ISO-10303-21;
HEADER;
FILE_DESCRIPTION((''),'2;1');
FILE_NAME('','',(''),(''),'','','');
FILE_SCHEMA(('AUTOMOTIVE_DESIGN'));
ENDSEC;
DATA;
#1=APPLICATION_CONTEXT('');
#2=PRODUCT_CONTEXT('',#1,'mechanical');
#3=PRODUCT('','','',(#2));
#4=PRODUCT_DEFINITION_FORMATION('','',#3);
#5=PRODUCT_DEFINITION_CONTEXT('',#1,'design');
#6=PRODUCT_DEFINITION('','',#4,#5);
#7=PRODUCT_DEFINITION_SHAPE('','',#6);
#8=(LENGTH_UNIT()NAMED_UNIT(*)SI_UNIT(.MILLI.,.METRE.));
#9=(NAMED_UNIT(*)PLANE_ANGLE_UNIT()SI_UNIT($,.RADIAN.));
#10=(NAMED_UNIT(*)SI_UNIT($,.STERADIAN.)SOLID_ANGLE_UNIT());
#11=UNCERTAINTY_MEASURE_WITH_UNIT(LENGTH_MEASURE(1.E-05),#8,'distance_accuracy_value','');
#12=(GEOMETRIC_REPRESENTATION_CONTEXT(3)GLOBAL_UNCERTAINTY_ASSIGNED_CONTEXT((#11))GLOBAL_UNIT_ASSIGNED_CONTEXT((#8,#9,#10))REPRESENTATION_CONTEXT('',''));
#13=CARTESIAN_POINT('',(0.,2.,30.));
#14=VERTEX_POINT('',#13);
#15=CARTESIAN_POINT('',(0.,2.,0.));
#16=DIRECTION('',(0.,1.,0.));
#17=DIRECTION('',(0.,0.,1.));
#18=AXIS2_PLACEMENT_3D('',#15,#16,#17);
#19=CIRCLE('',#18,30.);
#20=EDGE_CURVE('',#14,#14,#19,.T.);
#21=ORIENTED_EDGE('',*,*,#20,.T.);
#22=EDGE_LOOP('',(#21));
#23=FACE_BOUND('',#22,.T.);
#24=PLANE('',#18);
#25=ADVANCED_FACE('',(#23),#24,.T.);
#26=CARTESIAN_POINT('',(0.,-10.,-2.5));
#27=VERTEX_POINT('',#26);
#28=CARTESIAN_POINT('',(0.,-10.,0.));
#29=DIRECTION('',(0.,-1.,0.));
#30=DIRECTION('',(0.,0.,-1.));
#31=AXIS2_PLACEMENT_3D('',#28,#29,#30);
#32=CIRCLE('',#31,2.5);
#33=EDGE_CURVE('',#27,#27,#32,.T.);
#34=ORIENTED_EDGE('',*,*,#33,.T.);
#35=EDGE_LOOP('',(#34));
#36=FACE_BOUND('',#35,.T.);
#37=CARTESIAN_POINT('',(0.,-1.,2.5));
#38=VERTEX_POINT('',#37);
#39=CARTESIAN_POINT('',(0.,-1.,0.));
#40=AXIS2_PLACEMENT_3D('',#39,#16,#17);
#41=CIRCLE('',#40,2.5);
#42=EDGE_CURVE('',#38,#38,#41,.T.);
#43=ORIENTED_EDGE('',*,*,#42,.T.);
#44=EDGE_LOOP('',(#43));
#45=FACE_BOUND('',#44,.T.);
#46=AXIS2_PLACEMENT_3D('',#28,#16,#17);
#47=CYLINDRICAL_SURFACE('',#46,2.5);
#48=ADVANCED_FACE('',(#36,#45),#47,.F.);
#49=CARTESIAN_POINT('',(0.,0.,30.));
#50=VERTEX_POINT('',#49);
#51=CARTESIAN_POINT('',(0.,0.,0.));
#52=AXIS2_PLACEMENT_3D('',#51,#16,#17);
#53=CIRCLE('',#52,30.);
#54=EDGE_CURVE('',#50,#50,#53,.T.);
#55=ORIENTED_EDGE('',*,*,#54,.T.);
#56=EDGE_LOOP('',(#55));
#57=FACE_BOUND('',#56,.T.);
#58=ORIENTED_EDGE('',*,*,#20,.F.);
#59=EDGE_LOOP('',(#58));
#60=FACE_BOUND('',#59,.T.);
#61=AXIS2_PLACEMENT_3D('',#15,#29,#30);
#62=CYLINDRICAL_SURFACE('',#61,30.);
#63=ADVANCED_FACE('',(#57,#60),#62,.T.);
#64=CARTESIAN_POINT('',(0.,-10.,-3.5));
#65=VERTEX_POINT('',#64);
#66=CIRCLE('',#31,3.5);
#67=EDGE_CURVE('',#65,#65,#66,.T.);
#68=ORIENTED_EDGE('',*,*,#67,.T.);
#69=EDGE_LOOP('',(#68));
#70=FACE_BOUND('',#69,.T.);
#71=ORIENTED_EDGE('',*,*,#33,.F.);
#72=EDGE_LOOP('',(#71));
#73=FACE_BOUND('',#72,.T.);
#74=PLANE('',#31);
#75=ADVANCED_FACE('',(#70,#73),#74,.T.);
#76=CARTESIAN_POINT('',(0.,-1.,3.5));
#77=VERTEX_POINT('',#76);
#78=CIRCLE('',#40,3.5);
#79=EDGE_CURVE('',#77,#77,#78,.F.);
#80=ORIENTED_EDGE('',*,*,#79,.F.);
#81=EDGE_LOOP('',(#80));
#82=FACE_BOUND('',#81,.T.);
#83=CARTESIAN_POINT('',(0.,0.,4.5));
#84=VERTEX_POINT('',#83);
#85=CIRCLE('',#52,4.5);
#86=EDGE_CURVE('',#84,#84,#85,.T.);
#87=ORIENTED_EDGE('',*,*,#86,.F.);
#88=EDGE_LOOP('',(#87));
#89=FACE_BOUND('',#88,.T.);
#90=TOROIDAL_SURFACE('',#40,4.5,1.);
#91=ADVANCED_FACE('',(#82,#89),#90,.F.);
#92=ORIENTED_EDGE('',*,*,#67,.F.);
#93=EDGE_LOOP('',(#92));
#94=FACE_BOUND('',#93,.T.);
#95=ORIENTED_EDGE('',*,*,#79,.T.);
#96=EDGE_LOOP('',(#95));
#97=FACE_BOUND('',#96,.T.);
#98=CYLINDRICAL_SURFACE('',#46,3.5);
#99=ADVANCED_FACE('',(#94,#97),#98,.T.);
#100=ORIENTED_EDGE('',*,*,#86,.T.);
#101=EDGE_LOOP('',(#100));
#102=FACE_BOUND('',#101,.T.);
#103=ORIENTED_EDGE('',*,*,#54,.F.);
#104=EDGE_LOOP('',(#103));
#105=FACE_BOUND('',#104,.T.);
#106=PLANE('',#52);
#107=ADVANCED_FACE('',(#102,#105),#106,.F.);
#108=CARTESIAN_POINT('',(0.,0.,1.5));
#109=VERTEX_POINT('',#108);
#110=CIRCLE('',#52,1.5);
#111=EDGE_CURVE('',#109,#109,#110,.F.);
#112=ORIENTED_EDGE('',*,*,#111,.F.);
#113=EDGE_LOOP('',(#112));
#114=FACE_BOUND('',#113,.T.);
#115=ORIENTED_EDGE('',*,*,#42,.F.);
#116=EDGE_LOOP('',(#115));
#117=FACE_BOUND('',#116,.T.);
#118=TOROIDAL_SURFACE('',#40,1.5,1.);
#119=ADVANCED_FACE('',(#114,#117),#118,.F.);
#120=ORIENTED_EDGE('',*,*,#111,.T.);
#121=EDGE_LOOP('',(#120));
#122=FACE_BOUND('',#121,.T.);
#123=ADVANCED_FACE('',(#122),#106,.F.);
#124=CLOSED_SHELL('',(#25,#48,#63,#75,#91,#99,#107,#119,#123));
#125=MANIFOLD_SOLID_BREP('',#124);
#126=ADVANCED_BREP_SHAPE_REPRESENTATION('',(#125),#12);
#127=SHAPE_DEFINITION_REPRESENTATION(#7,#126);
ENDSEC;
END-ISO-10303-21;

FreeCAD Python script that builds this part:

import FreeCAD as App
import Part
import Sketcher
from FreeCAD import Vector
Q = App.Units.Quantity


def edges_at(feature, points):
    """Names of the edges that pass closest to the given points."""
    edges = feature.Shape.Edges
    near = lambda p: min(range(len(edges)), key=lambda i: edges[i].distToShape(Part.Vertex(*p))[0])
    return sorted({f"Edge{near(p) + 1}" for p in points})

doc = App.newDocument("Part")
params = doc.addObject("Spreadsheet::Sheet", "Params")
for row, (alias, value) in enumerate([
    ("sketch1_diameter", "60 mm"),
    ("pad1_length", "2 mm"),
    ("sketch2_diameter", "7 mm"),
    ("sketch2_diameter2", "5 mm"),
    ("pad2_length", "10 mm"),
    ("fillet_radius", "1 mm"),
    ("fillet2_radius", "1 mm"),
], start=1):
    params.set(f"A{row}", alias)
    params.set(f"B{row}", "=" + value)
    params.setAlias(f"B{row}", alias)

body = doc.addObject("PartDesign::Body", "Body")

# Sketch on XZ plane
sketch1 = body.newObject("Sketcher::SketchObject", "Sketch")
sketch1.AttachmentSupport = (doc.getObject("XZ_Plane"), [""])
sketch1.MapMode = "FlatFace"
sketch1.addGeometry(Part.Circle(Vector(0, 0, 0), Vector(0, 0, 1), 30), False)
sketch1.addConstraint(Sketcher.Constraint("Coincident", 0, 3, -1, 1))
sketch1.addConstraint(Sketcher.Constraint("Diameter", 0, Q("60 mm")))
sketch1.setExpression("Constraints[1]", "Params.sketch1_diameter")
pad1 = body.newObject("PartDesign::Pad", "Pad")
pad1.Profile = sketch1
pad1.setExpression("Length", "Params.pad1_length")
pad1.Reversed = True

# Sketch on XZ plane
sketch2 = body.newObject("Sketcher::SketchObject", "Sketch001")
sketch2.AttachmentSupport = (doc.getObject("XZ_Plane"), [""])
sketch2.MapMode = "FlatFace"
sketch2.addGeometry(Part.Circle(Vector(0, 0, 0), Vector(0, 0, 1), 3.5), False)
sketch2.addGeometry(Part.Circle(Vector(0, 0, 0), Vector(0, 0, 1), 2.5), False)
sketch2.addConstraint(Sketcher.Constraint("Coincident", 0, 3, -1, 1))
sketch2.addConstraint(Sketcher.Constraint("Coincident", 1, 3, -1, 1))
sketch2.addConstraint(Sketcher.Constraint("Diameter", 0, Q("7 mm")))
sketch2.addConstraint(Sketcher.Constraint("Diameter", 1, Q("5 mm")))
sketch2.setExpression("Constraints[2]", "Params.sketch2_diameter")
sketch2.setExpression("Constraints[3]", "Params.sketch2_diameter2")
pad2 = body.newObject("PartDesign::Pad", "Pad001")
pad2.Profile = sketch2
pad2.setExpression("Length", "Params.pad2_length")
doc.recompute()

fillet = body.newObject("PartDesign::Fillet", "Fillet")
fillet.Base = (pad2, edges_at(pad2, [(0, 0, -3.5)]))
fillet.setExpression("Radius", "Params.fillet_radius")
doc.recompute()

fillet2 = body.newObject("PartDesign::Fillet", "Fillet001")
fillet2.Base = (fillet, edges_at(fillet, [(0, 0, 2.5)]))
fillet2.setExpression("Radius", "Params.fillet2_radius")

doc.recompute()
